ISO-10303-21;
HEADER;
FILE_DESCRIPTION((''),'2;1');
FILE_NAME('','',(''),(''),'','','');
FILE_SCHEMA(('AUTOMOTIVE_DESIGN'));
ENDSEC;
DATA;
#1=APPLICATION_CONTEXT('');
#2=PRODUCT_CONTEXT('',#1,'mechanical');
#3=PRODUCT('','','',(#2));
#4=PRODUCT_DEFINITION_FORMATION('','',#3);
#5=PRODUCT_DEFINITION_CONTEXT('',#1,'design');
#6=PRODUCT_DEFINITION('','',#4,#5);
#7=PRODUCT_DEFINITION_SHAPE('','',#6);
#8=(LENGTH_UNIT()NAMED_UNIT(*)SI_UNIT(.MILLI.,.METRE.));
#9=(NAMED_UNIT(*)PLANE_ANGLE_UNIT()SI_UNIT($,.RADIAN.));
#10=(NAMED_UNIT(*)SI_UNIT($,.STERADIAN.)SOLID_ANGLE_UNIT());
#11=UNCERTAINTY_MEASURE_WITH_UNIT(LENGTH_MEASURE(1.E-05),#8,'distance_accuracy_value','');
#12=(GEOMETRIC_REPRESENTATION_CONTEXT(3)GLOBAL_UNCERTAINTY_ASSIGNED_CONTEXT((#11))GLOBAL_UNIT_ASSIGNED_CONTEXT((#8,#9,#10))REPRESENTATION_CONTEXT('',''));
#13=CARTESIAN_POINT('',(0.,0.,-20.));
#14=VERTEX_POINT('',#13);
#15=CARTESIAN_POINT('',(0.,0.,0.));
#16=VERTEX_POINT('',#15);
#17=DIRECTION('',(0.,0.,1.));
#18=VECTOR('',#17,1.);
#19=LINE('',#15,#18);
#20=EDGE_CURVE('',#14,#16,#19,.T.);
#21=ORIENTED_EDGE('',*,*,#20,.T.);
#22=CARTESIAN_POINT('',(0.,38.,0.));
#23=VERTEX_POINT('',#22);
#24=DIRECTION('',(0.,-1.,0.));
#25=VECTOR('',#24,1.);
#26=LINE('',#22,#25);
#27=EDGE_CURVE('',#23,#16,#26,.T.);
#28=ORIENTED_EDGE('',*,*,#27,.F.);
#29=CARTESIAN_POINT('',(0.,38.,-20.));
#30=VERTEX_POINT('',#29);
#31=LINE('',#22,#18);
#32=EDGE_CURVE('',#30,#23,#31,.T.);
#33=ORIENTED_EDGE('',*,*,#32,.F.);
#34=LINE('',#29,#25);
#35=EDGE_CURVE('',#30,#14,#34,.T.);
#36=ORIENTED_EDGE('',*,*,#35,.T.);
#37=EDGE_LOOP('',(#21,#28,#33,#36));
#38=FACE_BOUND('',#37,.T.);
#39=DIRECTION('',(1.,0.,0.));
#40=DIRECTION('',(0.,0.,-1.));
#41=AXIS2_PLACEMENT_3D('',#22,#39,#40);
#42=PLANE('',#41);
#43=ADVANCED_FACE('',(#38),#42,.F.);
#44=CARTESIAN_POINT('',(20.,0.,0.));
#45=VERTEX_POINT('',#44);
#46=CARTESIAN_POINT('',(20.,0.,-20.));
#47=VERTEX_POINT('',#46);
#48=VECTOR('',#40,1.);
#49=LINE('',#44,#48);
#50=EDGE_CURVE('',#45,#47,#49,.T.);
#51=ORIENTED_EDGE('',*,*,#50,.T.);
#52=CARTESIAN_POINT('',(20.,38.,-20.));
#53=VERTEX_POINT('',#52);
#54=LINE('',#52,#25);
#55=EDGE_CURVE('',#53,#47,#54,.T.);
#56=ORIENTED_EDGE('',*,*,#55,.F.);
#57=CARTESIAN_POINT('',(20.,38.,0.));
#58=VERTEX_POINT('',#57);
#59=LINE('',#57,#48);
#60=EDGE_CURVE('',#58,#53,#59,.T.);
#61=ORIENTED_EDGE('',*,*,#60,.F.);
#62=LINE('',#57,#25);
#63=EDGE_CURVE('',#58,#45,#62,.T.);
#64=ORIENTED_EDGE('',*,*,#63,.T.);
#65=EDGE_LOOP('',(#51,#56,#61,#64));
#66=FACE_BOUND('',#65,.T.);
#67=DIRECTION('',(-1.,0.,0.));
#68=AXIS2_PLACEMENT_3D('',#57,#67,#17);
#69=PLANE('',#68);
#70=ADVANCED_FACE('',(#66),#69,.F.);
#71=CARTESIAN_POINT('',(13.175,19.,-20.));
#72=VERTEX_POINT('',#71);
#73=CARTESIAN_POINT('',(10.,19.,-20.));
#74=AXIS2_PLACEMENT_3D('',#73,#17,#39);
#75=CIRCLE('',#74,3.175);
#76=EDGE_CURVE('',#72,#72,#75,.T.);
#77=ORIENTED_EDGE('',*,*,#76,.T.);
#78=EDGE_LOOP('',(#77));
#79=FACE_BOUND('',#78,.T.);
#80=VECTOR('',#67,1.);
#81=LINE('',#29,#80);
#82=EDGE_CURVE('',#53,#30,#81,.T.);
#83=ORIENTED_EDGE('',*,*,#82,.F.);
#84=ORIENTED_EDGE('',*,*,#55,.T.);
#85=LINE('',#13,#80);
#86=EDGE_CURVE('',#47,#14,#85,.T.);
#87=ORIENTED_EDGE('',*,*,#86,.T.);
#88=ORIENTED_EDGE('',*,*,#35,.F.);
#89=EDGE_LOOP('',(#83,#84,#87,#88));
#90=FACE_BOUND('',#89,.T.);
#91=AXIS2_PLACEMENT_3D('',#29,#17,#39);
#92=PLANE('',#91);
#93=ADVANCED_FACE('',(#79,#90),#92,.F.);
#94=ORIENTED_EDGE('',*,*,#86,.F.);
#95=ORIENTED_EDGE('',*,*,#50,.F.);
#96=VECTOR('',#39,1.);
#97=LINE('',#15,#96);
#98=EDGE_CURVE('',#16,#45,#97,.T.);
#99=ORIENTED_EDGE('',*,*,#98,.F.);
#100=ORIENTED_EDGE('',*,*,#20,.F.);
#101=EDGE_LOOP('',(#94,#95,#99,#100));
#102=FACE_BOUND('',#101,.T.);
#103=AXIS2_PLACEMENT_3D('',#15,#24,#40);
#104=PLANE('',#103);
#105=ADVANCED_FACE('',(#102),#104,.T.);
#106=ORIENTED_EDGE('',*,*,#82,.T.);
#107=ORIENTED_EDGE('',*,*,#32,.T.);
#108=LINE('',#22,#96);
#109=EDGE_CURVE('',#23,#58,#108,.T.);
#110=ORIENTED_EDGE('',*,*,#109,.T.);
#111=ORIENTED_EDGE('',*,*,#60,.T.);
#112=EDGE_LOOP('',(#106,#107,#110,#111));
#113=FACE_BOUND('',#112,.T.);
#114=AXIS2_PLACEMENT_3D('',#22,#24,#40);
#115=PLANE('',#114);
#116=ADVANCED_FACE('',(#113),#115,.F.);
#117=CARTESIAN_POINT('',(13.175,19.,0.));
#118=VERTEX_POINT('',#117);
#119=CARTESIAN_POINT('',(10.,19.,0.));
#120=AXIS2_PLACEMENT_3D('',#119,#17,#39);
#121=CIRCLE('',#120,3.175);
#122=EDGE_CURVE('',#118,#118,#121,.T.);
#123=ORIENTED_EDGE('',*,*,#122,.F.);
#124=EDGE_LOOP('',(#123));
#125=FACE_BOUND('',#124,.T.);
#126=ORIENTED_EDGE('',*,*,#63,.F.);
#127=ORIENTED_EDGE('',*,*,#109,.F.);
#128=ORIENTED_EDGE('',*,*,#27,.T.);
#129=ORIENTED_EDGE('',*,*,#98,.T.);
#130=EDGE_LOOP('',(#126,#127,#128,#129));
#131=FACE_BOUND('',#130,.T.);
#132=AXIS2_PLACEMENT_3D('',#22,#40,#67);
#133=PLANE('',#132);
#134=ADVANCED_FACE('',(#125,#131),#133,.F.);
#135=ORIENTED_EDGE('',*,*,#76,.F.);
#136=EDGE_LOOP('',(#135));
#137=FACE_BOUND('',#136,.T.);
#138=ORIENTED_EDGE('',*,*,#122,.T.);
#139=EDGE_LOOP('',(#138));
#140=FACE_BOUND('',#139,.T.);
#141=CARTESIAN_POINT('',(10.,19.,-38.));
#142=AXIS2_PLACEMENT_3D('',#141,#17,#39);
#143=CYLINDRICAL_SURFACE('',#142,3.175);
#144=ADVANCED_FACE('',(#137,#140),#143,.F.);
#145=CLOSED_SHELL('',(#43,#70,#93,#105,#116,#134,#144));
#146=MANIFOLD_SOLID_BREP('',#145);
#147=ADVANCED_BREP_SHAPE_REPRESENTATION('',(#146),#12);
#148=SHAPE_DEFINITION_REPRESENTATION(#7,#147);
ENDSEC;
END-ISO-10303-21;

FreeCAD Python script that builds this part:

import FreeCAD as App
import Part
import Sketcher
Q = App.Units.Quantity

doc = App.newDocument("Part")
body = doc.addObject("PartDesign::Body", "Body")

# Sketch on XZ plane
sketch1 = doc.addObject("Sketcher::SketchObject", "Sketch")
body.addObject(sketch1)
sketch1.AttachmentSupport = (doc.XZ_Plane, [""])
sketch1.MapMode = "FlatFace"
sketch1.addGeometry(Part.LineSegment(App.Vector(0, -20, 0), App.Vector(0, 0, 0)), False)
sketch1.addGeometry(Part.LineSegment(App.Vector(0, 0, 0), App.Vector(20, 0, 0)), False)
sketch1.addGeometry(Part.LineSegment(App.Vector(20, 0, 0), App.Vector(20, -20, 0)), False)
sketch1.addGeometry(Part.LineSegment(App.Vector(20, -20, 0), App.Vector(0, -20, 0)), False)
sketch1.addConstraint(Sketcher.Constraint("Coincident", 0, 2, 1, 1))
sketch1.addConstraint(Sketcher.Constraint("Coincident", 1, 2, 2, 1))
sketch1.addConstraint(Sketcher.Constraint("Coincident", 2, 2, 3, 1))
sketch1.addConstraint(Sketcher.Constraint("Coincident", 3, 2, 0, 1))
sketch1.addConstraint(Sketcher.Constraint("Vertical", 0))
sketch1.addConstraint(Sketcher.Constraint("Horizontal", 1))
sketch1.addConstraint(Sketcher.Constraint("Vertical", 2))
sketch1.addConstraint(Sketcher.Constraint("Horizontal", 3))
sketch1.addConstraint(Sketcher.Constraint("Coincident", 0, 2, -1, 1))
sketch1.addConstraint(Sketcher.Constraint("Equal", 3, 0))
sketch1.addConstraint(Sketcher.Constraint("DistanceX", 1, 1, 1, 2, Q("20 mm")))
pad1 = doc.addObject("PartDesign::Pad", "Pad")
body.addObject(pad1)
pad1.Profile = sketch1
pad1.Length = 38
pad1.Reversed = True

# Sketch on XY plane
sketch2 = doc.addObject("Sketcher::SketchObject", "Sketch001")
body.addObject(sketch2)
sketch2.AttachmentSupport = (doc.XY_Plane, [""])
sketch2.MapMode = "FlatFace"
sketch2.addGeometry(Part.Circle(App.Vector(10, 19, 0), App.Vector(0, 0, 1), 3.2), False)
sketch2.addConstraint(Sketcher.Constraint("Diameter", 0, Q("6.35 mm")))
sketch2.addConstraint(Sketcher.Constraint("DistanceX", -1, 1, 0, 3, Q("10 mm")))
sketch2.addConstraint(Sketcher.Constraint("DistanceY", -1, 1, 0, 3, Q("19 mm")))
pocket1 = doc.addObject("PartDesign::Pocket", "Pocket")
body.addObject(pocket1)
pocket1.Profile = sketch2
pocket1.Length = 38

doc.recompute()
